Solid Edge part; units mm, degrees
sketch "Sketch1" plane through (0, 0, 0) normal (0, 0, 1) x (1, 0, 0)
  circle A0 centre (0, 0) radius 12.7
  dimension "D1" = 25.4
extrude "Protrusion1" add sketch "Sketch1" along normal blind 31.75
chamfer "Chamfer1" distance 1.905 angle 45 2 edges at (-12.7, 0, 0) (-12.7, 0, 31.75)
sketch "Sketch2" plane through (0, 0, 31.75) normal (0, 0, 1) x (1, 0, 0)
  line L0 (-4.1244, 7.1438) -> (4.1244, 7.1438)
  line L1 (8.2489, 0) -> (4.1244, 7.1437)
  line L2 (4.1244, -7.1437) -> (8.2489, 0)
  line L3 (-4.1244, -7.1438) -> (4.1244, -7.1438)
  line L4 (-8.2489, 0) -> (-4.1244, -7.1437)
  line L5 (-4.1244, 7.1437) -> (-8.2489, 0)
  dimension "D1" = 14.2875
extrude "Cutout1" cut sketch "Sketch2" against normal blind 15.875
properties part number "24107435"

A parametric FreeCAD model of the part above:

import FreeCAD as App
import Part
import Sketcher
Q = App.Units.Quantity


def edges_at(feature, points):
    """Names of the edges that pass closest to the given points."""
    edges = feature.Shape.Edges
    near = lambda p: min(range(len(edges)), key=lambda i: edges[i].distToShape(Part.Vertex(*p))[0])
    return sorted({f"Edge{near(p) + 1}" for p in points})


def add_polygon(sketch, points):
    """Adds a closed chain of lines whose ends are joined by coincident constraints."""
    first, n = sketch.GeometryCount, len(points)
    for a, b in zip(points, points[1:] + points[:1]):
        sketch.addGeometry(Part.LineSegment(App.Vector(*a, 0), App.Vector(*b, 0)), False)
    for i in range(n):
        sketch.addConstraint(Sketcher.Constraint("Coincident", first + i, 2, first + (i + 1) % n, 1))

doc = App.newDocument("Part")
params = doc.addObject("Spreadsheet::Sheet", "Params")
for row, (alias, value) in enumerate([
    ("sketch1_diameter", "1 in"),
    ("pad1_length", "1.25 in"),
    ("chamfer_size", "0.075 in"),
    ("pocket1_length", "0.625 in"),
], start=1):
    params.set(f"A{row}", alias)
    params.set(f"B{row}", "=" + value)
    params.setAlias(f"B{row}", alias)

body = doc.addObject("PartDesign::Body", "Body")

# Sketch on XY plane
sketch1 = body.newObject("Sketcher::SketchObject", "Sketch")
sketch1.AttachmentSupport = (doc.getObject("XY_Plane"), [""])
sketch1.MapMode = "FlatFace"
sketch1.addGeometry(Part.Circle(App.Vector(0, 0, 0), App.Vector(0, 0, 1), 13), False)
sketch1.addConstraint([
    Sketcher.Constraint("Coincident", 0, 3, -1, 1),
    Sketcher.Constraint("Diameter", 0, Q("1 in")),
])
sketch1.setExpression("Constraints[1]", "Params.sketch1_diameter")
pad1 = body.newObject("PartDesign::Pad", "Pad")
pad1.Profile = sketch1
pad1.setExpression("Length", "Params.pad1_length")
doc.recompute()

chamfer = body.newObject("PartDesign::Chamfer", "Chamfer")
chamfer.Base = (pad1, edges_at(pad1, [(-12.7, 0, 0), (-12.7, 0, 31.75)]))
chamfer.setExpression("Size", "Params.chamfer_size")

# Sketch on XY plane
sketch2 = body.newObject("Sketcher::SketchObject", "Sketch001")
sketch2.AttachmentSupport = (doc.getObject("XY_Plane"), [""])
sketch2.MapMode = "FlatFace"
sketch2.AttachmentOffset = App.Placement(App.Vector(0, 0, 1.25 * 25.4), App.Rotation())
add_polygon(sketch2, [(4, 7), (-4, 7), (-8, 0), (-4, -7), (4, -7), (8, 0)])  # lines 0-5
sketch2.addConstraint([
    Sketcher.Constraint("Horizontal", 0),
    Sketcher.Constraint("Horizontal", 3),
    Sketcher.Constraint("Symmetric", 0, 2, 3, 2, -1, 1),
    Sketcher.Constraint("Symmetric", 1, 2, 4, 2, -1, 1),
    Sketcher.Constraint("PointOnObject", 1, 2, -1),
    Sketcher.Constraint("Parallel", 2, 5),
    Sketcher.Constraint("Vertical", 0, 2, 2, 2),
    Sketcher.Constraint("Angle", 1, Q("-120.0002 deg")),
    Sketcher.Constraint("DistanceY", -1, 1, 0, 2, Q("0.281252 in")),
    Sketcher.Constraint("DistanceX", 0, 2, 0, 1, 8.2488),
])
pocket1 = body.newObject("PartDesign::Pocket", "Pocket")
pocket1.Profile = sketch2
pocket1.setExpression("Length", "Params.pocket1_length")

doc.recompute()
